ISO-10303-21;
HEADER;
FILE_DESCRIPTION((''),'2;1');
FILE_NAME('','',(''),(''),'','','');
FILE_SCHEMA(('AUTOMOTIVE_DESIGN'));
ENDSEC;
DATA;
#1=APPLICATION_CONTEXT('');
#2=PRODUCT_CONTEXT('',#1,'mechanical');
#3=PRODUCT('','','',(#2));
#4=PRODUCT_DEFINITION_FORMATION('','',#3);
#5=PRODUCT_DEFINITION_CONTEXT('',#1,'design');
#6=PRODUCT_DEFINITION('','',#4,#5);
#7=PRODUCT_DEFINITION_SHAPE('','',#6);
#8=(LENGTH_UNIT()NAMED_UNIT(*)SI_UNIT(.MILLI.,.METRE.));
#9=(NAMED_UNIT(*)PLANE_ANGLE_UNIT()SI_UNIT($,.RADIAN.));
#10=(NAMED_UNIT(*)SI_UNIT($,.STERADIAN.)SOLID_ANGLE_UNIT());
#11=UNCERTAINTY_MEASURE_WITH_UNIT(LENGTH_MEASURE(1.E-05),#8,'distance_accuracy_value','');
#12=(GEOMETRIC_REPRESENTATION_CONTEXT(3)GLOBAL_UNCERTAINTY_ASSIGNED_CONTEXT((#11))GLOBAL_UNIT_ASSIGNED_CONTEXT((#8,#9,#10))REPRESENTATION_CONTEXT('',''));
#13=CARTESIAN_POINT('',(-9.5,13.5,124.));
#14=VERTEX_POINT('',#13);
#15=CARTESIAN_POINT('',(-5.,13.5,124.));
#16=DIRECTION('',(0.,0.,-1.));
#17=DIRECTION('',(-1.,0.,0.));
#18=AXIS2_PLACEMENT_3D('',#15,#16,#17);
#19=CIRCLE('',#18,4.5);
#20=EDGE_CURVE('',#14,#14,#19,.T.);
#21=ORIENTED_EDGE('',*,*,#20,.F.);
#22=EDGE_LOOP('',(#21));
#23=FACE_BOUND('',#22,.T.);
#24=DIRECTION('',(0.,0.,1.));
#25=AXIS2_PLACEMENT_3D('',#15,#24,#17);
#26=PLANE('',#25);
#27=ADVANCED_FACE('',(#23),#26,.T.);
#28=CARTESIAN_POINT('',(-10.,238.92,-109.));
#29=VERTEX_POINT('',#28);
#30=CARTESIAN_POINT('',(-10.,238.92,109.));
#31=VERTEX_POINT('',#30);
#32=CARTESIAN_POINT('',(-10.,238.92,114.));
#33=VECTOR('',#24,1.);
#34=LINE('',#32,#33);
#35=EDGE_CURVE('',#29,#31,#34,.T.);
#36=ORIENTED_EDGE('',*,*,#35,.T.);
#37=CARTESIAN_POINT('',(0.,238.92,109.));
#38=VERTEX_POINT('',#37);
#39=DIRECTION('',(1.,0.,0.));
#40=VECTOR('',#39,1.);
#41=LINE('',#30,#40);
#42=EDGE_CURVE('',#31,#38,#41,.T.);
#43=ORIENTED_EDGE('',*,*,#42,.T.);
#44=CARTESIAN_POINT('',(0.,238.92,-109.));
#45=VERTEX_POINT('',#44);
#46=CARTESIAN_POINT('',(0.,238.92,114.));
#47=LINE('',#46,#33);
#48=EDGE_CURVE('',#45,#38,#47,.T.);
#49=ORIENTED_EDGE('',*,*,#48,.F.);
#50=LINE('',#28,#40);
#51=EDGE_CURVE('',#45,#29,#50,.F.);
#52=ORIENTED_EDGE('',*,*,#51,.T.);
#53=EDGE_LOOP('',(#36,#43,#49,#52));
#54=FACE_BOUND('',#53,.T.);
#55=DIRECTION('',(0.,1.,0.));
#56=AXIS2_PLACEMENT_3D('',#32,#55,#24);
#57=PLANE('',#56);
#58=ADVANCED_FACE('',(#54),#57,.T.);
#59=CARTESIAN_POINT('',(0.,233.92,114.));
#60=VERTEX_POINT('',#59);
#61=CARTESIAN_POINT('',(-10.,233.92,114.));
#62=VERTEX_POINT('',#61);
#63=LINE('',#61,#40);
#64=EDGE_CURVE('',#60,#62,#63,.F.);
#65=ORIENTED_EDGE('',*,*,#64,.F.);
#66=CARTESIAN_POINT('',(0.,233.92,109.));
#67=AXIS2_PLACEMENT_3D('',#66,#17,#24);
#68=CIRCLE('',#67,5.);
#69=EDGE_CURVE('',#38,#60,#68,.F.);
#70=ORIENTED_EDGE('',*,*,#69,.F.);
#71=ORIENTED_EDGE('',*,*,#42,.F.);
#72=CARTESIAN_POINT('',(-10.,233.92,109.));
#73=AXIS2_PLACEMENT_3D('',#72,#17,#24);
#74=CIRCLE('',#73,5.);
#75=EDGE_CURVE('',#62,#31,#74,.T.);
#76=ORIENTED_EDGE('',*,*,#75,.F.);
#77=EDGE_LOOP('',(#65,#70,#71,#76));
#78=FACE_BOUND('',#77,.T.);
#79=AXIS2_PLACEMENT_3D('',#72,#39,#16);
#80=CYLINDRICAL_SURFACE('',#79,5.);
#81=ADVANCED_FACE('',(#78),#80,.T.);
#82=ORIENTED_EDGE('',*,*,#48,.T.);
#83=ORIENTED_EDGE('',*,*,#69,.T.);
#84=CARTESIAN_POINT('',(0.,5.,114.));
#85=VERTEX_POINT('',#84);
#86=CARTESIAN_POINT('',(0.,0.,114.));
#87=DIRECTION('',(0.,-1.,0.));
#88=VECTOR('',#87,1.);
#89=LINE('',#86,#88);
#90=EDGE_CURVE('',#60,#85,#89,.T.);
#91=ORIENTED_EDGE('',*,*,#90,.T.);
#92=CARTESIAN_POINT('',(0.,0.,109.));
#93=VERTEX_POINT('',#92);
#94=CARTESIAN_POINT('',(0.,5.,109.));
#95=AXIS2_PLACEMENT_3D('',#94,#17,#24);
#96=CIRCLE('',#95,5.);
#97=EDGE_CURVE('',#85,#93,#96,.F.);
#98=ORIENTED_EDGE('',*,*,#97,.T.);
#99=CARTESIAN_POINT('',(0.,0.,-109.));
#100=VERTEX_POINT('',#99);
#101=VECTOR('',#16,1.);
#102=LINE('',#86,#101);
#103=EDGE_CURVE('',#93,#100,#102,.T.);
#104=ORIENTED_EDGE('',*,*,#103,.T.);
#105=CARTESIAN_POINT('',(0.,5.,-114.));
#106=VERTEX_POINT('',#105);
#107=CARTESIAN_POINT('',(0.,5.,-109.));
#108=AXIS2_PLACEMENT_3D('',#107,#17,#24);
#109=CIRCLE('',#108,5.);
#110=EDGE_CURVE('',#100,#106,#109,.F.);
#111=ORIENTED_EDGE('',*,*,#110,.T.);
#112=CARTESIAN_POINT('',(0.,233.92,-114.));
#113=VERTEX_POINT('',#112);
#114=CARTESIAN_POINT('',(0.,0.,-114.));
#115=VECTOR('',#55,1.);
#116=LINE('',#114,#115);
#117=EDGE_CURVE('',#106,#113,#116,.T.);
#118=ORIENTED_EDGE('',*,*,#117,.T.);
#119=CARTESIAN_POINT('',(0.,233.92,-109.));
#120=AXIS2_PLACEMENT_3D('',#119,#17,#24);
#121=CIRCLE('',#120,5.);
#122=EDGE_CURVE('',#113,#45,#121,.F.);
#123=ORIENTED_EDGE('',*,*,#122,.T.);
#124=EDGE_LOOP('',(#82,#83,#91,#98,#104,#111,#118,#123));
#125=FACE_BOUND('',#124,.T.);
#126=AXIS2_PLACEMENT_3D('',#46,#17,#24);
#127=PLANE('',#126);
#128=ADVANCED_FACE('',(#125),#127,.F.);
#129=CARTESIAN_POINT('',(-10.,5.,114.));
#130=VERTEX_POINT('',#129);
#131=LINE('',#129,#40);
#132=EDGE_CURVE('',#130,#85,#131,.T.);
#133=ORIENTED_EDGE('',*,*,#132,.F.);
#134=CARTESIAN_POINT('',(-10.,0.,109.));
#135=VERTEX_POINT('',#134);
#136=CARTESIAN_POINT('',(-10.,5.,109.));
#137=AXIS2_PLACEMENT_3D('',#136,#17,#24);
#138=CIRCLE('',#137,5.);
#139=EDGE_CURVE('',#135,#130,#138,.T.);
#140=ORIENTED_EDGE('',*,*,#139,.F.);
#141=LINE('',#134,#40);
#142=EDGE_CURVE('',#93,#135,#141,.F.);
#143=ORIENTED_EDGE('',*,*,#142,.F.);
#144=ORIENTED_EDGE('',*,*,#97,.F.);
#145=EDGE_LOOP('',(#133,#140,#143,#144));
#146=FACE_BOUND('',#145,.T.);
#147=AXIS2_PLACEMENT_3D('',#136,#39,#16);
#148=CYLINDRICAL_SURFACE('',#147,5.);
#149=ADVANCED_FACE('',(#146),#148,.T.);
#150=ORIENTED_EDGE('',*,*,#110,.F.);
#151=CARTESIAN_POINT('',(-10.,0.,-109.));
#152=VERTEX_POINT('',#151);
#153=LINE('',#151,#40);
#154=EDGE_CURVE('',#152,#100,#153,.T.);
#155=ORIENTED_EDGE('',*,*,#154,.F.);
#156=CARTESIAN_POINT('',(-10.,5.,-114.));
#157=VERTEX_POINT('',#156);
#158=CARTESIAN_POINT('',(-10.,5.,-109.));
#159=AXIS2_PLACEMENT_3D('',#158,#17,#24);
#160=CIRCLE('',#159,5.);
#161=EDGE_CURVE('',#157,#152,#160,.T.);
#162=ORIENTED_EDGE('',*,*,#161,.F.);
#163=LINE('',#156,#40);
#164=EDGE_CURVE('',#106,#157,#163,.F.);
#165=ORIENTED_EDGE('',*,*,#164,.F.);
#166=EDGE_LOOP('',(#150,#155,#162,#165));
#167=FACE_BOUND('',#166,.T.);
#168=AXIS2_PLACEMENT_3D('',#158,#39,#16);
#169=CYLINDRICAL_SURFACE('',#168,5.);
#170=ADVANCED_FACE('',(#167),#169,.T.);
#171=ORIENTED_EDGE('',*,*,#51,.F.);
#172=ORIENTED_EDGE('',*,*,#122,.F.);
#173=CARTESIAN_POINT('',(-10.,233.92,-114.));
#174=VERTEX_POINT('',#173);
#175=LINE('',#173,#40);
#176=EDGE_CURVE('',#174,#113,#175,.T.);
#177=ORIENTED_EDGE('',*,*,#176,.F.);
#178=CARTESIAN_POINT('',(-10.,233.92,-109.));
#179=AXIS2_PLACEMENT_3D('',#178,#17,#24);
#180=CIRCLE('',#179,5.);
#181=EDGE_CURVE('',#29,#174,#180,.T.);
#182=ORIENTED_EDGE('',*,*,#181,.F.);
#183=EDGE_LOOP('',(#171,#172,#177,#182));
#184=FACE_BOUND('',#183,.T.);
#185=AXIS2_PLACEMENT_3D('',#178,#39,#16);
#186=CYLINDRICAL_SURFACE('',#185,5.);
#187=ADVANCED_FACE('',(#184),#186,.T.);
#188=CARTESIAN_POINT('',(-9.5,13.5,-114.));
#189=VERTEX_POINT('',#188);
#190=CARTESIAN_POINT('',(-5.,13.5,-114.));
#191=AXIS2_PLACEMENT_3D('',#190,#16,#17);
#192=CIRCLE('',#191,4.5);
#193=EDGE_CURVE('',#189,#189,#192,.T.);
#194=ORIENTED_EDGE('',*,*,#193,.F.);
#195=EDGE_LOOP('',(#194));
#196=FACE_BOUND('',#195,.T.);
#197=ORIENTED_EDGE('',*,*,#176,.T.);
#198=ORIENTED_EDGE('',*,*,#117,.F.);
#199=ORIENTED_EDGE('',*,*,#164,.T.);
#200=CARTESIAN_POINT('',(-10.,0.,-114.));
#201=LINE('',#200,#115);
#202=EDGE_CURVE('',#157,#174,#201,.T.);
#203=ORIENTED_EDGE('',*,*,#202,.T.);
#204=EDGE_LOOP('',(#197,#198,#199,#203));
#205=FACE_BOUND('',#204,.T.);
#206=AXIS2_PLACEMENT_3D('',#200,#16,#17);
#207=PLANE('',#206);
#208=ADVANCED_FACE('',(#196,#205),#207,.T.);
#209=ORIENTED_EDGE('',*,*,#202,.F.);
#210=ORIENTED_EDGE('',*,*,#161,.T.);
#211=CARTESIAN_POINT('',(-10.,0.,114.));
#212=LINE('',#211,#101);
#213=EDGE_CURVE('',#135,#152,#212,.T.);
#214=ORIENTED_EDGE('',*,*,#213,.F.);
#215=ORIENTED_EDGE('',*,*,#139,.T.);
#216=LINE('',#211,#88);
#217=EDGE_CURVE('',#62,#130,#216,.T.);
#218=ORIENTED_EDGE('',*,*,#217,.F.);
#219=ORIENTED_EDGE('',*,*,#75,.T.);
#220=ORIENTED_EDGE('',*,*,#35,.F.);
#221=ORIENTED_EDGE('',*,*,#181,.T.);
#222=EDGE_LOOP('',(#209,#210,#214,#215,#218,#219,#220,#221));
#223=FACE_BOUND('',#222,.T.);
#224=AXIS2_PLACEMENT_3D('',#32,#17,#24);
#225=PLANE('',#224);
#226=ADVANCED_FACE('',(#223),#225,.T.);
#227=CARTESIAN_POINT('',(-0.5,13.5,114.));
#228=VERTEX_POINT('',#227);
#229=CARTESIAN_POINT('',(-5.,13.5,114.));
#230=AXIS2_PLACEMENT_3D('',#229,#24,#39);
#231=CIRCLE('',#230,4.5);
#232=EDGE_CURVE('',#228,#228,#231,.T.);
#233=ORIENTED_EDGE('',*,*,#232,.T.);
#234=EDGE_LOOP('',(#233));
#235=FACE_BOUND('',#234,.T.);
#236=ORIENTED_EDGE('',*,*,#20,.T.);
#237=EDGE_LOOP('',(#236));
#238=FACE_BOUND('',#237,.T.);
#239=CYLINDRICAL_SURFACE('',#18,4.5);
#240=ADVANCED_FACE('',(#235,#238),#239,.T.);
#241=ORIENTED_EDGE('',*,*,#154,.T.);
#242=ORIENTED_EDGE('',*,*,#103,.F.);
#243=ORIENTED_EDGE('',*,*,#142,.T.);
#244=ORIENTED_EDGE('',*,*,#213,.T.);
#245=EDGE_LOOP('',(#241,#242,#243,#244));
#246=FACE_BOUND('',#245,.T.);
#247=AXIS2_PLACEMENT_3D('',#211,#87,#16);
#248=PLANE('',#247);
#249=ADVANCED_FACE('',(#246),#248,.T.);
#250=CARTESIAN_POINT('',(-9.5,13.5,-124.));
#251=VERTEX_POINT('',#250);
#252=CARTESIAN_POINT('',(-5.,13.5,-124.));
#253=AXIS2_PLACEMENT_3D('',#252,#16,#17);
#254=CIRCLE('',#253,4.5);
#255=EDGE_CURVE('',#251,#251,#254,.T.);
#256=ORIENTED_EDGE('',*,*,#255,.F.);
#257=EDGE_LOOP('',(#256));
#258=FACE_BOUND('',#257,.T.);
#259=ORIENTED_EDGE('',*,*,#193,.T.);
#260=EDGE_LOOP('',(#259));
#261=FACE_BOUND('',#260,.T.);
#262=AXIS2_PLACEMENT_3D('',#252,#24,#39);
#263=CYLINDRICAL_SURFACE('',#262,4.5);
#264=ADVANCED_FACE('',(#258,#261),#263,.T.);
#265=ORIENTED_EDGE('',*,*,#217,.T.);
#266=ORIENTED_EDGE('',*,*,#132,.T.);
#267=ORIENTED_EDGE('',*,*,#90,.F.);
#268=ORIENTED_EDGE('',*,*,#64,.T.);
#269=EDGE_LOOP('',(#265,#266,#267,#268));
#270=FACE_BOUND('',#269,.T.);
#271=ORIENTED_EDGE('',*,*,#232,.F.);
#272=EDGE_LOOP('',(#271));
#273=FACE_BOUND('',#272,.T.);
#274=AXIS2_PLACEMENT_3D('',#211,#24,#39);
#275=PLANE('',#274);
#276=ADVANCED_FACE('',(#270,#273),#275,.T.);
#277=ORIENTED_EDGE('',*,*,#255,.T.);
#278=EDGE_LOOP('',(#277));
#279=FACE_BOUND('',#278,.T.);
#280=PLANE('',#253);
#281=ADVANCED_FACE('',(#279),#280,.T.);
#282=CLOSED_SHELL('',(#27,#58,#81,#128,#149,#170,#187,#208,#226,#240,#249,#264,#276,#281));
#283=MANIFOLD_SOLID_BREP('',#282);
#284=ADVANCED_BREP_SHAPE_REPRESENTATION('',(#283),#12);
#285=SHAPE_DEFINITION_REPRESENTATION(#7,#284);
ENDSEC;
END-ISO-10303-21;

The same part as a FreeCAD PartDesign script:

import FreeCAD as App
import Part
import Sketcher
from FreeCAD import Vector
Q = App.Units.Quantity


def edges_at(feature, points):
    """Names of the edges that pass closest to the given points."""
    edges = feature.Shape.Edges
    near = lambda p: min(range(len(edges)), key=lambda i: edges[i].distToShape(Part.Vertex(*p))[0])
    return sorted({f"Edge{near(p) + 1}" for p in points})


def add_polygon(sketch, points):
    """Adds a closed chain of lines whose ends are joined by coincident constraints."""
    first, n = sketch.GeometryCount, len(points)
    for a, b in zip(points, points[1:] + points[:1]):
        sketch.addGeometry(Part.LineSegment(App.Vector(*a, 0), App.Vector(*b, 0)), False)
    for i in range(n):
        sketch.addConstraint(Sketcher.Constraint("Coincident", first + i, 2, first + (i + 1) % n, 1))

doc = App.newDocument("Part")
body = doc.addObject("PartDesign::Body", "Body")

sketch1 = body.newObject("Sketcher::SketchObject", "Sketch")
sketch1.AttachmentSupport = (doc.getObject("YZ_Plane"), [""])
sketch1.MapMode = "FlatFace"
add_polygon(sketch1, [(238.92, 114), (0, 114), (0, -114), (238.92, -114)])
sketch1.addConstraint(Sketcher.Constraint("Horizontal", 0))
sketch1.addConstraint(Sketcher.Constraint("Vertical", 1))
sketch1.addConstraint(Sketcher.Constraint("Horizontal", 2))
sketch1.addConstraint(Sketcher.Constraint("Vertical", 3))
sketch1.addConstraint(Sketcher.Constraint("Symmetric", 0, 2, 1, 2, -1, 1))
sketch1.addConstraint(Sketcher.Constraint("DistanceY", 1, 2, 1, 1, Q("228 mm")))
sketch1.addConstraint(Sketcher.Constraint("DistanceX", 0, 2, 0, 1, Q("238.92 mm")))
pad1 = body.newObject("PartDesign::Pad", "Pad")
pad1.Profile = sketch1
pad1.Length = 10
pad1.Reversed = True

sketch2 = body.newObject("Sketcher::SketchObject", "Sketch001")
sketch2.AttachmentSupport = (doc.getObject("XY_Plane"), [""])
sketch2.MapMode = "FlatFace"
sketch2.AttachmentOffset = App.Placement(Vector(0, 0, -114), App.Rotation())
sketch2.addGeometry(Part.Circle(Vector(-5, 13.5, 0), Vector(0, 0, 1), 4.5), False)
sketch2.addConstraint(Sketcher.Constraint("Diameter", 0, Q("9 mm")))
sketch2.addConstraint(Sketcher.Constraint("DistanceX", 0, 3, -1, 1, Q("5 mm")))
sketch2.addConstraint(Sketcher.Constraint("DistanceY", -1, 1, 0, 3, Q("13.5 mm")))
pad2 = body.newObject("PartDesign::Pad", "Pad001")
pad2.Profile = sketch2
pad2.Length = 10
pad2.Reversed = True
doc.recompute()

mirrored = body.newObject("PartDesign::Mirrored", "Mirrored")
mirrored.Originals = [pad2]
mirrored.MirrorPlane = (doc.getObject("XY_Plane"), [""])
body.Tip = mirrored
doc.recompute()

fillet = body.newObject("PartDesign::Fillet", "Fillet")
fillet.Base = (mirrored, edges_at(mirrored, [
    (-5, 238.92, 114),
    (-5, 238.92, -114),
    (-5, 0, -114),
    (-5, 0, 114),
]))
fillet.Radius = 5

doc.recompute()
